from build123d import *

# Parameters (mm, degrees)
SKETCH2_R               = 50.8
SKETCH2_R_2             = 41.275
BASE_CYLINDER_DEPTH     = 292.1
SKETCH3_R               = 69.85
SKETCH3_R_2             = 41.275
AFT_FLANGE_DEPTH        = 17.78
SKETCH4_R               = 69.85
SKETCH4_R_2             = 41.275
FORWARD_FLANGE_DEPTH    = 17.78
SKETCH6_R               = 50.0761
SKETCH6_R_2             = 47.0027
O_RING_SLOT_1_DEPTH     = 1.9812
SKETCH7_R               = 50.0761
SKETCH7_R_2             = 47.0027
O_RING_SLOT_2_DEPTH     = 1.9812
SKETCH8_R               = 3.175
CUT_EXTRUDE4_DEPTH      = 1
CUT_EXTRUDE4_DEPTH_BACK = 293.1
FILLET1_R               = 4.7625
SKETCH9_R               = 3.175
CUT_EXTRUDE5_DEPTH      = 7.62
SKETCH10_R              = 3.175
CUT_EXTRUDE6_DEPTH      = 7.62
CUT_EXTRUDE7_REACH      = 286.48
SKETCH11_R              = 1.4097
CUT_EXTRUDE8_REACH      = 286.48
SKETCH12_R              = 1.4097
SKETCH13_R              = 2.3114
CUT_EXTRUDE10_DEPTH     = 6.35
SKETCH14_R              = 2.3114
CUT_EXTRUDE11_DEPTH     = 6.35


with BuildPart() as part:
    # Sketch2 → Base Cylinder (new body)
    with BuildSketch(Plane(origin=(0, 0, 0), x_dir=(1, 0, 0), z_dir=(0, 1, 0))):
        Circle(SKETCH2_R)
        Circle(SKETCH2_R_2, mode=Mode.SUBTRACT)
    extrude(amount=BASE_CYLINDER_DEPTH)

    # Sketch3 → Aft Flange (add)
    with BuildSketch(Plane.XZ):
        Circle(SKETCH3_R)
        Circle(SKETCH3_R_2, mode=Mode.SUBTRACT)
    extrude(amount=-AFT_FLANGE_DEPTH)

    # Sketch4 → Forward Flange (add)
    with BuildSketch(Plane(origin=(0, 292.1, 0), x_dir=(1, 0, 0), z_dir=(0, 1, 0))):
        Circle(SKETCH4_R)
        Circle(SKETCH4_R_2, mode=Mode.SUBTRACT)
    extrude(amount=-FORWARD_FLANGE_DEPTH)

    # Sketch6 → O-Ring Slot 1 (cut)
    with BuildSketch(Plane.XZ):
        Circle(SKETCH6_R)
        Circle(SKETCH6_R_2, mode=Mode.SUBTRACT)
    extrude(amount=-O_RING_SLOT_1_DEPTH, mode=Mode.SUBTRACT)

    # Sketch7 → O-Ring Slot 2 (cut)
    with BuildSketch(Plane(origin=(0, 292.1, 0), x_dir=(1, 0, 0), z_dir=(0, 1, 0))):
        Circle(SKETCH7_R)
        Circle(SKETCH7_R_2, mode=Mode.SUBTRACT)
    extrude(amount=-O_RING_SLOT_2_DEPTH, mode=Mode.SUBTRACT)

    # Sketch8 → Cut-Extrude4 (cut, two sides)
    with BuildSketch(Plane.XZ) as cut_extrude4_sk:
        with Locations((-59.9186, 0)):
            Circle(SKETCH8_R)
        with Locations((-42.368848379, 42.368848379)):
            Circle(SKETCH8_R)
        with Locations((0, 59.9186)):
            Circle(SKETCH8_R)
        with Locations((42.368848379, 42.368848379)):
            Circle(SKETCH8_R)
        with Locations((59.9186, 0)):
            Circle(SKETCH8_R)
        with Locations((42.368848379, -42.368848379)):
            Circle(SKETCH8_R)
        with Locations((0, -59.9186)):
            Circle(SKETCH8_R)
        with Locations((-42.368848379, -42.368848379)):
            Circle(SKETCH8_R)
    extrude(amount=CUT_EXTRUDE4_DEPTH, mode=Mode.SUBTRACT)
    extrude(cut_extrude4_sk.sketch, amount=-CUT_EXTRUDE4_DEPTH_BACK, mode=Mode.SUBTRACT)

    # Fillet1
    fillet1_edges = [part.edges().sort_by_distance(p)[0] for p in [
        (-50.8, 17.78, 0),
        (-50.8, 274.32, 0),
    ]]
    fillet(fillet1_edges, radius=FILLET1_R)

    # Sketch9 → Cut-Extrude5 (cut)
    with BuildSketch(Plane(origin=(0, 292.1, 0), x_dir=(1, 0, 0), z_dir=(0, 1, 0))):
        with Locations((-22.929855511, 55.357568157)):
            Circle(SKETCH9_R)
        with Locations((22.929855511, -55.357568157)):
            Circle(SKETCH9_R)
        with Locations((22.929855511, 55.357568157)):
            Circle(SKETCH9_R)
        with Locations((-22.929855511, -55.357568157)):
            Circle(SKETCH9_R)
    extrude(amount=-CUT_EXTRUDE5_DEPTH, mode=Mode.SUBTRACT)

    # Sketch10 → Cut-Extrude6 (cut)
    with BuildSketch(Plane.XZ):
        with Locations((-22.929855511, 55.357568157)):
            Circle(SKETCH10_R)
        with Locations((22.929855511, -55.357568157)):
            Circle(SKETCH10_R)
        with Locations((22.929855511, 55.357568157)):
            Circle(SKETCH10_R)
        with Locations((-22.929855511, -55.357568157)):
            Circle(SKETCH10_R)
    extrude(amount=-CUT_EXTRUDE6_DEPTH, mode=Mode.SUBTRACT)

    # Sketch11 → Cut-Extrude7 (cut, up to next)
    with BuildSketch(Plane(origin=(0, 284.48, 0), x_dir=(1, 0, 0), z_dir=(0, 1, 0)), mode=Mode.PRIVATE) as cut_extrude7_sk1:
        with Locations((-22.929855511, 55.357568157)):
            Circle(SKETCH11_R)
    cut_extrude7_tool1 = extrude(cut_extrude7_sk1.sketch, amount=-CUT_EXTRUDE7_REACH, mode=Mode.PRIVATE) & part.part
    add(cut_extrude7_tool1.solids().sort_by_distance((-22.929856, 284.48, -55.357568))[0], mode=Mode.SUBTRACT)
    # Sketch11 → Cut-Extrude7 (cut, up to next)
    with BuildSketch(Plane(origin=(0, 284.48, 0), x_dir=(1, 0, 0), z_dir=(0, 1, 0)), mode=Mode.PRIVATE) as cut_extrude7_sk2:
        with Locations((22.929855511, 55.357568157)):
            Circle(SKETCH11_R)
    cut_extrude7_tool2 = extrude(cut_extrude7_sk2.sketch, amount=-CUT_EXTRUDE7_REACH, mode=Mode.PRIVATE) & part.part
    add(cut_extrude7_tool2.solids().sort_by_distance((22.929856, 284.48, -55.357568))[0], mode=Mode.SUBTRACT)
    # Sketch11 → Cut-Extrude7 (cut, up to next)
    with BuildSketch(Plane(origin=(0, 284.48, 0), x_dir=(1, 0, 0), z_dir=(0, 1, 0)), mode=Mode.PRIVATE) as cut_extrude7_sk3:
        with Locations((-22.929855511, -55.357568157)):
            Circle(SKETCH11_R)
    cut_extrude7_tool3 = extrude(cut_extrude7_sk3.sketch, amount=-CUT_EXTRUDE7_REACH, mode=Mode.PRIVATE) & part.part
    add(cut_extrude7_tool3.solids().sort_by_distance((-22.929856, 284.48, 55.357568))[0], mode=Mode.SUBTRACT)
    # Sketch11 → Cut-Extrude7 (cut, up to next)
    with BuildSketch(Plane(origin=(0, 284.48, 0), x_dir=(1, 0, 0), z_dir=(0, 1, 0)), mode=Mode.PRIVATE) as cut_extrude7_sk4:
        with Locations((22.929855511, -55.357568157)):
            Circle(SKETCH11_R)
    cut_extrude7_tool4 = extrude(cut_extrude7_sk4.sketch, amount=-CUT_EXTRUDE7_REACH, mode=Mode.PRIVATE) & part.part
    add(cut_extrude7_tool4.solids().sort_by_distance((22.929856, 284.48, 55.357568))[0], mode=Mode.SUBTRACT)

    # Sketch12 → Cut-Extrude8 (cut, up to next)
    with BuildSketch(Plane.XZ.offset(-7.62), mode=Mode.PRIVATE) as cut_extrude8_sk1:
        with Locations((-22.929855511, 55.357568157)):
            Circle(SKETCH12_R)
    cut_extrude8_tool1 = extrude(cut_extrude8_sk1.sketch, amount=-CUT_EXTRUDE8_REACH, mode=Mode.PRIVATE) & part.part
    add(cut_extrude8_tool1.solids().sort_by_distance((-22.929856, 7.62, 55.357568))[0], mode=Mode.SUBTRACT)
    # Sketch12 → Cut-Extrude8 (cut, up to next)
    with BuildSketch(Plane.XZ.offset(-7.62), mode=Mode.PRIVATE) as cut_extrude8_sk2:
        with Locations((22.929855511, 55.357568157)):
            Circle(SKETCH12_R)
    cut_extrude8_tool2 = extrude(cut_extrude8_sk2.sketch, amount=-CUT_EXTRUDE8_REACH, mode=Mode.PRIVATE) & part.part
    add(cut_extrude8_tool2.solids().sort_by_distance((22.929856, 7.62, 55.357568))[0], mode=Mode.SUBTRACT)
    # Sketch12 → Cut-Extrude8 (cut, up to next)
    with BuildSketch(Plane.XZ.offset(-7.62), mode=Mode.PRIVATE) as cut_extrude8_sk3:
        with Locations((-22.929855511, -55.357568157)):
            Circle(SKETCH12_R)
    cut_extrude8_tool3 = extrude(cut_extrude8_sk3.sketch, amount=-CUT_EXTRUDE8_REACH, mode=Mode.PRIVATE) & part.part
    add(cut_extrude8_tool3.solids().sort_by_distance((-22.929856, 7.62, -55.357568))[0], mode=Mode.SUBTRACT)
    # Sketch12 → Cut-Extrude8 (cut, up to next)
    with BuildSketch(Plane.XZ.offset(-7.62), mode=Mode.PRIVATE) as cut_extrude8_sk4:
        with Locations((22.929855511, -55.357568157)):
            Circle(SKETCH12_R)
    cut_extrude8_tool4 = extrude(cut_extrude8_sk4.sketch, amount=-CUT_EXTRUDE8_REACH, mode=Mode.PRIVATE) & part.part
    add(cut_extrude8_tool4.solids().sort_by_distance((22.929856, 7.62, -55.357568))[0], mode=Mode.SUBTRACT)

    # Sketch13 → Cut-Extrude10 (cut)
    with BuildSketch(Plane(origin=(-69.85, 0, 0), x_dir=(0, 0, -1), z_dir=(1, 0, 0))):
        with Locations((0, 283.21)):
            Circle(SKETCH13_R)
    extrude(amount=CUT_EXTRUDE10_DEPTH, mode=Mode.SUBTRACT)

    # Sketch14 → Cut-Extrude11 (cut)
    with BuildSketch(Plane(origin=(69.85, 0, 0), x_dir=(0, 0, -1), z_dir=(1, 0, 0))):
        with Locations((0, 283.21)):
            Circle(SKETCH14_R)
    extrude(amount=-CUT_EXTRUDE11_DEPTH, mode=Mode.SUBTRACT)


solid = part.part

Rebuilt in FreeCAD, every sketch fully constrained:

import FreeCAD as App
import Part
import Sketcher
from FreeCAD import Vector
Q = App.Units.Quantity


def edges_at(feature, points):
    """Names of the edges that pass closest to the given points."""
    edges = feature.Shape.Edges
    near = lambda p: min(range(len(edges)), key=lambda i: edges[i].distToShape(Part.Vertex(*p))[0])
    return sorted({f"Edge{near(p) + 1}" for p in points})

doc = App.newDocument("Part")
body = doc.addObject("PartDesign::Body", "Body")

# Sketch on XZ plane
sketch1 = doc.addObject("Sketcher::SketchObject", "Sketch")
body.addObject(sketch1)
sketch1.AttachmentSupport = (doc.XZ_Plane, [""])
sketch1.MapMode = "FlatFace"
sketch1.addGeometry([
    Part.Circle(Vector(0, 0, 0), Vector(0, 0, 1), 50.8),
    Part.Circle(Vector(0, 0, 0), Vector(0, 0, 1), 41.275),
], False)
sketch1.addConstraint([
    Sketcher.Constraint("Coincident", 0, 3, -1, 1),
    Sketcher.Constraint("Coincident", 1, 3, -1, 1),
    Sketcher.Constraint("Diameter", 0, Q("4 in")),
    Sketcher.Constraint("Diameter", 1, Q("3.25 in")),
])
pad1 = doc.addObject("PartDesign::Pad", "Pad")
body.addObject(pad1)
pad1.Profile = sketch1
pad1.Length = Q("11.5 in")
pad1.Reversed = True

# Sketch on XZ plane
sketch2 = doc.addObject("Sketcher::SketchObject", "Sketch001")
body.addObject(sketch2)
sketch2.AttachmentSupport = (doc.XZ_Plane, [""])
sketch2.MapMode = "FlatFace"
sketch2.addGeometry([
    Part.Circle(Vector(0, 0, 0), Vector(0, 0, 1), 69.85),
    Part.Circle(Vector(0, 0, 0), Vector(0, 0, 1), 41.275),
], False)
sketch2.addConstraint([
    Sketcher.Constraint("Coincident", 0, 3, -1, 1),
    Sketcher.Constraint("Coincident", 1, 3, -1, 1),
    Sketcher.Constraint("Diameter", 0, Q("5.5 in")),
    Sketcher.Constraint("Diameter", 1, Q("3.25 in")),
])
pad2 = doc.addObject("PartDesign::Pad", "Pad001")
body.addObject(pad2)
pad2.Profile = sketch2
pad2.Length = Q("0.7 in")
pad2.Reversed = True

# Sketch on XZ plane
sketch3 = doc.addObject("Sketcher::SketchObject", "Sketch002")
body.addObject(sketch3)
sketch3.AttachmentSupport = (doc.XZ_Plane, [""])
sketch3.MapMode = "FlatFace"
sketch3.AttachmentOffset = App.Placement(Vector(0, 0, -11.5 * 25.4), App.Rotation())
sketch3.addGeometry([
    Part.Circle(Vector(0, 0, 0), Vector(0, 0, 1), 69.85),
    Part.Circle(Vector(0, 0, 0), Vector(0, 0, 1), 41.275),
], False)
sketch3.addConstraint([
    Sketcher.Constraint("Coincident", 0, 3, -1, 1),
    Sketcher.Constraint("Coincident", 1, 3, -1, 1),
    Sketcher.Constraint("Diameter", 0, Q("5.5 in")),
    Sketcher.Constraint("Diameter", 1, Q("3.25 in")),
])
pad3 = doc.addObject("PartDesign::Pad", "Pad002")
body.addObject(pad3)
pad3.Profile = sketch3
pad3.Length = Q("0.7 in")

# Sketch on XZ plane
sketch4 = doc.addObject("Sketcher::SketchObject", "Sketch003")
body.addObject(sketch4)
sketch4.AttachmentSupport = (doc.XZ_Plane, [""])
sketch4.MapMode = "FlatFace"
sketch4.addGeometry([
    Part.Circle(Vector(0, 0, 0), Vector(0, 0, 1), 50.0761),
    Part.Circle(Vector(0, 0, 0), Vector(0, 0, 1), 47.0027),
], False)
sketch4.addConstraint([
    Sketcher.Constraint("Coincident", 0, 3, -1, 1),
    Sketcher.Constraint("Coincident", 1, 3, -1, 1),
    Sketcher.Constraint("Diameter", 0, Q("3.943 in")),
    Sketcher.Constraint("Diameter", 1, Q("3.701 in")),
])
pocket1 = doc.addObject("PartDesign::Pocket", "Pocket")
body.addObject(pocket1)
pocket1.Profile = sketch4
pocket1.Length = Q("0.078 in")

# Sketch on XZ plane
sketch5 = doc.addObject("Sketcher::SketchObject", "Sketch004")
body.addObject(sketch5)
sketch5.AttachmentSupport = (doc.XZ_Plane, [""])
sketch5.MapMode = "FlatFace"
sketch5.AttachmentOffset = App.Placement(Vector(0, 0, -11.5 * 25.4), App.Rotation())
sketch5.addGeometry([
    Part.Circle(Vector(0, 0, 0), Vector(0, 0, 1), 50.0761),
    Part.Circle(Vector(0, 0, 0), Vector(0, 0, 1), 47.0027),
], False)
sketch5.addConstraint([
    Sketcher.Constraint("Coincident", 0, 3, -1, 1),
    Sketcher.Constraint("Coincident", 1, 3, -1, 1),
    Sketcher.Constraint("Diameter", 0, Q("3.943 in")),
    Sketcher.Constraint("Diameter", 1, Q("3.701 in")),
])
pocket2 = doc.addObject("PartDesign::Pocket", "Pocket001")
body.addObject(pocket2)
pocket2.Profile = sketch5
pocket2.Length = Q("0.078 in")
pocket2.Reversed = True

# Sketch on XZ plane
sketch6 = doc.addObject("Sketcher::SketchObject", "Sketch005")
body.addObject(sketch6)
sketch6.AttachmentSupport = (doc.XZ_Plane, [""])
sketch6.MapMode = "FlatFace"
sketch6.addGeometry([
    Part.Circle(Vector(-59.9186, 0, 0), Vector(0, 0, 1), 3.175),  # 0
    Part.Circle(Vector(-42.368848, 42.368848, 0), Vector(0, 0, 1), 3.175),  # 1
    Part.Circle(Vector(0, 59.9186, 0), Vector(0, 0, 1), 3.175),  # 2
    Part.Circle(Vector(42.368848, 42.368848, 0), Vector(0, 0, 1), 3.175),  # 3
    Part.Circle(Vector(59.9186, 0, 0), Vector(0, 0, 1), 3.175),  # 4
    Part.Circle(Vector(42.368848, -42.368848, 0), Vector(0, 0, 1), 3.175),  # 5
    Part.Circle(Vector(0, -59.9186, 0), Vector(0, 0, 1), 3.175),  # 6
    Part.Circle(Vector(-42.368848, -42.368848, 0), Vector(0, 0, 1), 3.175),  # 7
], False)
sketch6.addConstraint([
    Sketcher.Constraint("Equal", 0, 1),
    Sketcher.Constraint("Equal", 1, 2),
    Sketcher.Constraint("Equal", 2, 3),
    Sketcher.Constraint("Equal", 3, 4),
    Sketcher.Constraint("Equal", 4, 5),
    Sketcher.Constraint("Equal", 5, 6),
    Sketcher.Constraint("Equal", 6, 7),
    Sketcher.Constraint("Symmetric", 0, 3, 4, 3, -1, 1),
    Sketcher.Constraint("Symmetric", 1, 3, 5, 3, -1, 1),
    Sketcher.Constraint("Symmetric", 2, 3, 6, 3, -1, 1),
    Sketcher.Constraint("Symmetric", 3, 3, 7, 3, -1, 1),
    Sketcher.Constraint("Symmetric", 1, 3, 3, 3, -2),
    Sketcher.Constraint("PointOnObject", 0, 3, -1),
    Sketcher.Constraint("PointOnObject", 2, 3, -2),
    Sketcher.Constraint("Diameter", 0, Q("0.25 in")),
    Sketcher.Constraint("DistanceX", 0, 3, -1, 1, Q("2.359 in")),
    Sketcher.Constraint("DistanceY", -1, 1, 2, 3, Q("2.359 in")),
    Sketcher.Constraint("DistanceX", 1, 3, -1, 1, Q("42.368848 mm")),
    Sketcher.Constraint("DistanceY", -1, 1, 1, 3, Q("42.368848 mm")),
])
pocket3 = doc.addObject("PartDesign::Pocket", "Pocket002")
body.addObject(pocket3)
pocket3.Profile = sketch6
pocket3.Type = "ThroughAll"
pocket3.Midplane = True
doc.recompute()

fillet = doc.addObject("PartDesign::Fillet", "Fillet")
body.addObject(fillet)
fillet.Base = (pocket3, edges_at(pocket3, [(-50.8, 17.78, 0), (-50.8, 274.32, 0)]))
fillet.Radius = Q("0.1875 in")

# Sketch on XZ plane
sketch7 = doc.addObject("Sketcher::SketchObject", "Sketch006")
body.addObject(sketch7)
sketch7.AttachmentSupport = (doc.XZ_Plane, [""])
sketch7.MapMode = "FlatFace"
sketch7.AttachmentOffset = App.Placement(Vector(0, 0, -11.5 * 25.4), App.Rotation())
sketch7.addGeometry([
    Part.Circle(Vector(-22.929856, -55.357568, 0), Vector(0, 0, 1), 3.175),
    Part.Circle(Vector(22.929856, 55.357568, 0), Vector(0, 0, 1), 3.175),
    Part.Circle(Vector(22.929856, -55.357568, 0), Vector(0, 0, 1), 3.175),
    Part.Circle(Vector(-22.929856, 55.357568, 0), Vector(0, 0, 1), 3.175),
], False)
sketch7.addConstraint([
    Sketcher.Constraint("Equal", 0, 1),
    Sketcher.Constraint("Equal", 1, 2),
    Sketcher.Constraint("Equal", 2, 3),
    Sketcher.Constraint("Symmetric", 0, 3, 1, 3, -1, 1),
    Sketcher.Constraint("Symmetric", 2, 3, 3, 3, -1, 1),
    Sketcher.Constraint("Symmetric", 0, 3, 2, 3, -2),
    Sketcher.Constraint("Diameter", 0, Q("0.25 in")),
    Sketcher.Constraint("DistanceY", 0, 3, -1, 1, Q("55.357568 mm")),
    Sketcher.Constraint("DistanceX", 0, 3, 1, 3, Q("45.859711 mm")),
])
pocket4 = doc.addObject("PartDesign::Pocket", "Pocket003")
body.addObject(pocket4)
pocket4.Profile = sketch7
pocket4.Length = Q("0.3 in")
pocket4.Reversed = True

# Sketch on XZ plane
sketch8 = doc.addObject("Sketcher::SketchObject", "Sketch007")
body.addObject(sketch8)
sketch8.AttachmentSupport = (doc.XZ_Plane, [""])
sketch8.MapMode = "FlatFace"
sketch8.addGeometry([
    Part.Circle(Vector(-22.929856, 55.357568, 0), Vector(0, 0, 1), 3.175),
    Part.Circle(Vector(22.929856, -55.357568, 0), Vector(0, 0, 1), 3.175),
    Part.Circle(Vector(22.929856, 55.357568, 0), Vector(0, 0, 1), 3.175),
    Part.Circle(Vector(-22.929856, -55.357568, 0), Vector(0, 0, 1), 3.175),
], False)
sketch8.addConstraint([
    Sketcher.Constraint("Equal", 0, 1),
    Sketcher.Constraint("Equal", 1, 2),
    Sketcher.Constraint("Equal", 2, 3),
    Sketcher.Constraint("Symmetric", 0, 3, 1, 3, -1, 1),
    Sketcher.Constraint("Symmetric", 2, 3, 3, 3, -1, 1),
    Sketcher.Constraint("Symmetric", 0, 3, 2, 3, -2),
    Sketcher.Constraint("Diameter", 0, Q("0.25 in")),
    Sketcher.Constraint("DistanceY", -1, 1, 0, 3, Q("55.357568 mm")),
    Sketcher.Constraint("DistanceX", 0, 3, 1, 3, Q("45.859711 mm")),
])
pocket5 = doc.addObject("PartDesign::Pocket", "Pocket004")
body.addObject(pocket5)
pocket5.Profile = sketch8
pocket5.Length = Q("0.3 in")

# Sketch on XZ plane
sketch9 = doc.addObject("Sketcher::SketchObject", "Sketch008")
body.addObject(sketch9)
sketch9.AttachmentSupport = (doc.XZ_Plane, [""])
sketch9.MapMode = "FlatFace"
sketch9.AttachmentOffset = App.Placement(Vector(0, 0, -11.2 * 25.4), App.Rotation())
sketch9.addGeometry(Part.Circle(Vector(-22.929856, -55.357568, 0), Vector(0, 0, 1), 1.4097), False)
sketch9.addConstraint([
    Sketcher.Constraint("Diameter", 0, Q("0.111 in")),
    Sketcher.Constraint("DistanceY", 0, 3, -1, 1, Q("55.357568 mm")),
    Sketcher.Constraint("DistanceX", 0, 3, -1, 1, Q("22.929856 mm")),
])
pocket6 = doc.addObject("PartDesign::Pocket", "Pocket005")
body.addObject(pocket6)
pocket6.Profile = sketch9
pocket6.Type = "UpToFirst"
pocket6.Reversed = True

# Sketch on XZ plane
sketch10 = doc.addObject("Sketcher::SketchObject", "Sketch009")
body.addObject(sketch10)
sketch10.AttachmentSupport = (doc.XZ_Plane, [""])
sketch10.MapMode = "FlatFace"
sketch10.AttachmentOffset = App.Placement(Vector(0, 0, -11.2 * 25.4), App.Rotation())
sketch10.addGeometry(Part.Circle(Vector(22.929856, -55.357568, 0), Vector(0, 0, 1), 1.4097), False)
sketch10.addConstraint([
    Sketcher.Constraint("Diameter", 0, Q("0.111 in")),
    Sketcher.Constraint("DistanceY", 0, 3, -1, 1, Q("55.357568 mm")),
    Sketcher.Constraint("DistanceX", -1, 1, 0, 3, Q("22.929856 mm")),
])
pocket7 = doc.addObject("PartDesign::Pocket", "Pocket006")
body.addObject(pocket7)
pocket7.Profile = sketch10
pocket7.Type = "UpToFirst"
pocket7.Reversed = True

# Sketch on XZ plane
sketch11 = doc.addObject("Sketcher::SketchObject", "Sketch010")
body.addObject(sketch11)
sketch11.AttachmentSupport = (doc.XZ_Plane, [""])
sketch11.MapMode = "FlatFace"
sketch11.AttachmentOffset = App.Placement(Vector(0, 0, -11.2 * 25.4), App.Rotation())
sketch11.addGeometry(Part.Circle(Vector(-22.929856, 55.357568, 0), Vector(0, 0, 1), 1.4097), False)
sketch11.addConstraint([
    Sketcher.Constraint("Diameter", 0, Q("0.111 in")),
    Sketcher.Constraint("DistanceY", -1, 1, 0, 3, Q("55.357568 mm")),
    Sketcher.Constraint("DistanceX", 0, 3, -1, 1, Q("22.929856 mm")),
])
pocket8 = doc.addObject("PartDesign::Pocket", "Pocket007")
body.addObject(pocket8)
pocket8.Profile = sketch11
pocket8.Type = "UpToFirst"
pocket8.Reversed = True

# Sketch on XZ plane
sketch12 = doc.addObject("Sketcher::SketchObject", "Sketch011")
body.addObject(sketch12)
sketch12.AttachmentSupport = (doc.XZ_Plane, [""])
sketch12.MapMode = "FlatFace"
sketch12.AttachmentOffset = App.Placement(Vector(0, 0, -11.2 * 25.4), App.Rotation())
sketch12.addGeometry(Part.Circle(Vector(22.929856, 55.357568, 0), Vector(0, 0, 1), 1.4097), False)
sketch12.addConstraint([
    Sketcher.Constraint("Diameter", 0, Q("0.111 in")),
    Sketcher.Constraint("DistanceY", -1, 1, 0, 3, Q("55.357568 mm")),
    Sketcher.Constraint("DistanceX", -1, 1, 0, 3, Q("22.929856 mm")),
])
pocket9 = doc.addObject("PartDesign::Pocket", "Pocket008")
body.addObject(pocket9)
pocket9.Profile = sketch12
pocket9.Type = "UpToFirst"
pocket9.Reversed = True

# Sketch on XZ plane
sketch13 = doc.addObject("Sketcher::SketchObject", "Sketch012")
body.addObject(sketch13)
sketch13.AttachmentSupport = (doc.XZ_Plane, [""])
sketch13.MapMode = "FlatFace"
sketch13.AttachmentOffset = App.Placement(Vector(0, 0, -0.3 * 25.4), App.Rotation())
sketch13.addGeometry(Part.Circle(Vector(-22.929856, 55.357568, 0), Vector(0, 0, 1), 1.4097), False)
sketch13.addConstraint([
    Sketcher.Constraint("Diameter", 0, Q("0.111 in")),
    Sketcher.Constraint("DistanceY", -1, 1, 0, 3, Q("55.357568 mm")),
    Sketcher.Constraint("DistanceX", 0, 3, -1, 1, Q("22.929856 mm")),
])
pocket10 = doc.addObject("PartDesign::Pocket", "Pocket009")
body.addObject(pocket10)
pocket10.Profile = sketch13
pocket10.Type = "UpToFirst"

# Sketch on XZ plane
sketch14 = doc.addObject("Sketcher::SketchObject", "Sketch013")
body.addObject(sketch14)
sketch14.AttachmentSupport = (doc.XZ_Plane, [""])
sketch14.MapMode = "FlatFace"
sketch14.AttachmentOffset = App.Placement(Vector(0, 0, -0.3 * 25.4), App.Rotation())
sketch14.addGeometry(Part.Circle(Vector(22.929856, 55.357568, 0), Vector(0, 0, 1), 1.4097), False)
sketch14.addConstraint([
    Sketcher.Constraint("Diameter", 0, Q("0.111 in")),
    Sketcher.Constraint("DistanceY", -1, 1, 0, 3, Q("55.357568 mm")),
    Sketcher.Constraint("DistanceX", -1, 1, 0, 3, Q("22.929856 mm")),
])
pocket11 = doc.addObject("PartDesign::Pocket", "Pocket010")
body.addObject(pocket11)
pocket11.Profile = sketch14
pocket11.Type = "UpToFirst"

# Sketch on XZ plane
sketch15 = doc.addObject("Sketcher::SketchObject", "Sketch014")
body.addObject(sketch15)
sketch15.AttachmentSupport = (doc.XZ_Plane, [""])
sketch15.MapMode = "FlatFace"
sketch15.AttachmentOffset = App.Placement(Vector(0, 0, -0.3 * 25.4), App.Rotation())
sketch15.addGeometry(Part.Circle(Vector(-22.929856, -55.357568, 0), Vector(0, 0, 1), 1.4097), False)
sketch15.addConstraint([
    Sketcher.Constraint("Diameter", 0, Q("0.111 in")),
    Sketcher.Constraint("DistanceY", 0, 3, -1, 1, Q("55.357568 mm")),
    Sketcher.Constraint("DistanceX", 0, 3, -1, 1, Q("22.929856 mm")),
])
pocket12 = doc.addObject("PartDesign::Pocket", "Pocket011")
body.addObject(pocket12)
pocket12.Profile = sketch15
pocket12.Type = "UpToFirst"

# Sketch on XZ plane
sketch16 = doc.addObject("Sketcher::SketchObject", "Sketch015")
body.addObject(sketch16)
sketch16.AttachmentSupport = (doc.XZ_Plane, [""])
sketch16.MapMode = "FlatFace"
sketch16.AttachmentOffset = App.Placement(Vector(0, 0, -0.3 * 25.4), App.Rotation())
sketch16.addGeometry(Part.Circle(Vector(22.929856, -55.357568, 0), Vector(0, 0, 1), 1.4097), False)
sketch16.addConstraint([
    Sketcher.Constraint("Diameter", 0, Q("0.111 in")),
    Sketcher.Constraint("DistanceY", 0, 3, -1, 1, Q("55.357568 mm")),
    Sketcher.Constraint("DistanceX", -1, 1, 0, 3, Q("22.929856 mm")),
])
pocket13 = doc.addObject("PartDesign::Pocket", "Pocket012")
body.addObject(pocket13)
pocket13.Profile = sketch16
pocket13.Type = "UpToFirst"

# Sketch on YZ plane
sketch17 = doc.addObject("Sketcher::SketchObject", "Sketch016")
body.addObject(sketch17)
sketch17.AttachmentSupport = (doc.YZ_Plane, [""])
sketch17.MapMode = "FlatFace"
sketch17.AttachmentOffset = App.Placement(Vector(0, 0, -2.75 * 25.4), App.Rotation())
sketch17.addGeometry(Part.Circle(Vector(283.21, 0, 0), Vector(0, 0, 1), 2.3114), False)
sketch17.addConstraint([
    Sketcher.Constraint("PointOnObject", 0, 3, -1),
    Sketcher.Constraint("Diameter", 0, Q("0.182 in")),
    Sketcher.Constraint("DistanceX", -1, 1, 0, 3, Q("11.15 in")),
])
pocket14 = doc.addObject("PartDesign::Pocket", "Pocket013")
body.addObject(pocket14)
pocket14.Profile = sketch17
pocket14.Length = Q("0.25 in")
pocket14.Reversed = True

# Sketch on YZ plane
sketch18 = doc.addObject("Sketcher::SketchObject", "Sketch017")
body.addObject(sketch18)
sketch18.AttachmentSupport = (doc.YZ_Plane, [""])
sketch18.MapMode = "FlatFace"
sketch18.AttachmentOffset = App.Placement(Vector(0, 0, 2.75 * 25.4), App.Rotation())
sketch18.addGeometry(Part.Circle(Vector(283.21, 0, 0), Vector(0, 0, 1), 2.3114), False)
sketch18.addConstraint([
    Sketcher.Constraint("PointOnObject", 0, 3, -1),
    Sketcher.Constraint("Diameter", 0, Q("0.182 in")),
    Sketcher.Constraint("DistanceX", -1, 1, 0, 3, Q("11.15 in")),
])
pocket15 = doc.addObject("PartDesign::Pocket", "Pocket014")
body.addObject(pocket15)
pocket15.Profile = sketch18
pocket15.Length = Q("0.25 in")

doc.recompute()
